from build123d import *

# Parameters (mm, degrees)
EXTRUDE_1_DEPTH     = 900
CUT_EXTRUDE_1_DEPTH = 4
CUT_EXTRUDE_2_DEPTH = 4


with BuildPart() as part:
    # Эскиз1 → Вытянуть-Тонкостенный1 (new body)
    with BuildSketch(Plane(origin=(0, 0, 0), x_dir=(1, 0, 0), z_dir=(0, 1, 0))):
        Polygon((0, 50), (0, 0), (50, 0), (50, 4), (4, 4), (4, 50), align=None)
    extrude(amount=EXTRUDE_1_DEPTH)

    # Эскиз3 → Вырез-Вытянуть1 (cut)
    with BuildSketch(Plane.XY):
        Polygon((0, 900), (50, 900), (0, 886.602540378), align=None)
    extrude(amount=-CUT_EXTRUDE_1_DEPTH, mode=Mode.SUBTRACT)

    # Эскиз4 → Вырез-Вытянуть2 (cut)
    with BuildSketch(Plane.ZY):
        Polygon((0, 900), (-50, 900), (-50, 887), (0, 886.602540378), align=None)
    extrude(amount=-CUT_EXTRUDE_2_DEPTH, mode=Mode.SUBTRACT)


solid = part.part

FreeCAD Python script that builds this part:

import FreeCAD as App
import Part
import Sketcher

V = App.Vector
Q = App.Units.Quantity


def add_polygon(sketch, points):
    """Adds a closed chain of lines whose ends are joined by coincident constraints."""
    first, n = sketch.GeometryCount, len(points)
    for a, b in zip(points, points[1:] + points[:1]):
        sketch.addGeometry(Part.LineSegment(App.Vector(*a, 0), App.Vector(*b, 0)), False)
    for i in range(n):
        sketch.addConstraint(Sketcher.Constraint("Coincident", first + i, 2, first + (i + 1) % n, 1))

doc = App.newDocument("Part")
body = doc.addObject("PartDesign::Body", "Body")

# Sketch on XZ plane
sketch1 = doc.addObject("Sketcher::SketchObject", "Sketch")
body.addObject(sketch1)
sketch1.AttachmentSupport = (doc.XZ_Plane, [""])
sketch1.MapMode = "FlatFace"
add_polygon(sketch1, [(0, -50), (0, 0), (50, 0), (50, -4), (4, -4), (4, -50)])  # lines 0-5
sketch1.addConstraint(Sketcher.Constraint("Vertical", 0))
sketch1.addConstraint(Sketcher.Constraint("Horizontal", 1))
sketch1.addConstraint(Sketcher.Constraint("Vertical", 2))
sketch1.addConstraint(Sketcher.Constraint("Horizontal", 3))
sketch1.addConstraint(Sketcher.Constraint("Vertical", 4))
sketch1.addConstraint(Sketcher.Constraint("Horizontal", 5))
sketch1.addConstraint(Sketcher.Constraint("Coincident", 0, 2, -1, 1))
sketch1.addConstraint(Sketcher.Constraint("Equal", 1, 0))
sketch1.addConstraint(Sketcher.Constraint("Equal", 5, 2))
sketch1.addConstraint(Sketcher.Constraint("DistanceX", 1, 1, 1, 2, 50.0))
sketch1.addConstraint(Sketcher.Constraint("DistanceX", 3, 2, 3, 1, 46.0))
pad1 = doc.addObject("PartDesign::Pad", "Pad")
body.addObject(pad1)
pad1.Profile = sketch1
pad1.Length = 900
pad1.Reversed = True

# Sketch on XY plane
sketch2 = doc.addObject("Sketcher::SketchObject", "Sketch001")
body.addObject(sketch2)
sketch2.AttachmentSupport = (doc.XY_Plane, [""])
sketch2.MapMode = "FlatFace"
add_polygon(sketch2, [(50, 900), (0, 900), (0, 886.60254)])  # lines 0-2
sketch2.addConstraint(Sketcher.Constraint("Horizontal", 0))
sketch2.addConstraint(Sketcher.Constraint("Vertical", 1))
sketch2.addConstraint(Sketcher.Constraint("PointOnObject", 0, 2, -2))
sketch2.addConstraint(Sketcher.Constraint("DistanceX", 0, 2, 0, 1, 50.0))
sketch2.addConstraint(Sketcher.Constraint("Angle", 2, Q("15 deg")))
sketch2.addConstraint(Sketcher.Constraint("DistanceY", -1, 1, 0, 2, 900.0))
pocket1 = doc.addObject("PartDesign::Pocket", "Pocket")
body.addObject(pocket1)
pocket1.Profile = sketch2
pocket1.Length = 4

# Sketch on YZ plane
sketch3 = doc.addObject("Sketcher::SketchObject", "Sketch002")
body.addObject(sketch3)
sketch3.AttachmentSupport = (doc.YZ_Plane, [""])
sketch3.MapMode = "FlatFace"
add_polygon(sketch3, [(900, 0), (900, -50), (887, -50), (886.60254, 0)])  # lines 0-3
sketch3.addConstraint(Sketcher.Constraint("Vertical", 0))
sketch3.addConstraint(Sketcher.Constraint("Horizontal", 1))
sketch3.addConstraint(Sketcher.Constraint("Horizontal", 3))
sketch3.addConstraint(Sketcher.Constraint("PointOnObject", 2, 2, -1))
sketch3.addConstraint(Sketcher.Constraint("DistanceX", 1, 2, 1, 1, 13.0))
sketch3.addConstraint(Sketcher.Constraint("DistanceY", 0, 2, 0, 1, 50.0))
sketch3.addConstraint(Sketcher.Constraint("DistanceX", -1, 1, 0, 2, 900.0))
sketch3.addConstraint(Sketcher.Constraint("DistanceX", 3, 1, 3, 2, 13.39746))
pocket2 = doc.addObject("PartDesign::Pocket", "Pocket001")
body.addObject(pocket2)
pocket2.Profile = sketch3
pocket2.Length = 4
pocket2.Reversed = True

doc.recompute()
